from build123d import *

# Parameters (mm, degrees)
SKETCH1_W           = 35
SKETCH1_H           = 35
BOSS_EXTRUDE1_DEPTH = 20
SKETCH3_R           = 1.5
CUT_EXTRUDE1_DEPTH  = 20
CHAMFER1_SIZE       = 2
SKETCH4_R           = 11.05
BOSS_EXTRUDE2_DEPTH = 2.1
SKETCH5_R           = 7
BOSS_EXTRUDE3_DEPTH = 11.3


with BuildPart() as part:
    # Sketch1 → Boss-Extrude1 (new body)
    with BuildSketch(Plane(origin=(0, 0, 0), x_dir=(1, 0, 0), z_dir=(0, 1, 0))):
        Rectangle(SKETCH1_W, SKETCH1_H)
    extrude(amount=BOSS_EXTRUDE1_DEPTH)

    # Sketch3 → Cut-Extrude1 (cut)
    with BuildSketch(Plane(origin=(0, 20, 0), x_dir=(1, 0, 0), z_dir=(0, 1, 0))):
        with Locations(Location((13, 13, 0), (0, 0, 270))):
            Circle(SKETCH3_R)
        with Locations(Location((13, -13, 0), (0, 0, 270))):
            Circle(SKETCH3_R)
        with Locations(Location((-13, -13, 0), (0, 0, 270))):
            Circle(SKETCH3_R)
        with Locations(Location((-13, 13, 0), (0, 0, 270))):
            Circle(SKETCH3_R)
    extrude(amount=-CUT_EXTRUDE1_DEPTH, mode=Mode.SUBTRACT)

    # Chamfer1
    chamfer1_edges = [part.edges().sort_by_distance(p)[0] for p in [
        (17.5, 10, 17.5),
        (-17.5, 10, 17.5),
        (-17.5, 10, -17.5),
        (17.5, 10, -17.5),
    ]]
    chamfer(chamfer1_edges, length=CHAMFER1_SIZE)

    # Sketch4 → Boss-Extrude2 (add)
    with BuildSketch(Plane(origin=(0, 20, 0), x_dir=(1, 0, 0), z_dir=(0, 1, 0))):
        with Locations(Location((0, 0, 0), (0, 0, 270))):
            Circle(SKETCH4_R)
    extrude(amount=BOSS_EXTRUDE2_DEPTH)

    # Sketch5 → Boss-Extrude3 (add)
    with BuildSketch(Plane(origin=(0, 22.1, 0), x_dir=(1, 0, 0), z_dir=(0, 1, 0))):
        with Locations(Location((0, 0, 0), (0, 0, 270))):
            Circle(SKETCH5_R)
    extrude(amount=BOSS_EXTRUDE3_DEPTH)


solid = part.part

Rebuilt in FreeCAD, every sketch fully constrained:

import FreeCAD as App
import Part
import Sketcher

V = App.Vector
Q = App.Units.Quantity


def edges_at(feature, points):
    """Names of the edges that pass closest to the given points."""
    edges = feature.Shape.Edges
    near = lambda p: min(range(len(edges)), key=lambda i: edges[i].distToShape(Part.Vertex(*p))[0])
    return sorted({f"Edge{near(p) + 1}" for p in points})

doc = App.newDocument("Part")
body = doc.addObject("PartDesign::Body", "Body")

sketch1 = body.newObject("Sketcher::SketchObject", "Sketch")
sketch1.AttachmentSupport = (doc.getObject("XZ_Plane"), [""])
sketch1.MapMode = "FlatFace"
sketch1.addGeometry(Part.LineSegment(V(-18, -18, 0), V(-18, 18, 0)), False)
sketch1.addGeometry(Part.LineSegment(V(-18, 18, 0), V(18, 18, 0)), False)
sketch1.addGeometry(Part.LineSegment(V(18, 18, 0), V(18, -18, 0)), False)
sketch1.addGeometry(Part.LineSegment(V(18, -18, 0), V(-18, -18, 0)), False)
sketch1.addConstraint(Sketcher.Constraint("Coincident", 0, 2, 1, 1))
sketch1.addConstraint(Sketcher.Constraint("Coincident", 1, 2, 2, 1))
sketch1.addConstraint(Sketcher.Constraint("Coincident", 2, 2, 3, 1))
sketch1.addConstraint(Sketcher.Constraint("Coincident", 3, 2, 0, 1))
sketch1.addConstraint(Sketcher.Constraint("Vertical", 0))
sketch1.addConstraint(Sketcher.Constraint("Horizontal", 1))
sketch1.addConstraint(Sketcher.Constraint("Vertical", 2))
sketch1.addConstraint(Sketcher.Constraint("Horizontal", 3))
sketch1.addConstraint(Sketcher.Constraint("Symmetric", 0, 2, 2, 2, -1, 1))
sketch1.addConstraint(Sketcher.Constraint("Equal", 3, 0))
sketch1.addConstraint(Sketcher.Constraint("DistanceX", 1, 1, 1, 2, Q("35 mm")))
pad1 = body.newObject("PartDesign::Pad", "Pad")
pad1.Profile = sketch1
pad1.Length = 20
pad1.Reversed = True

sketch2 = body.newObject("Sketcher::SketchObject", "Sketch001")
sketch2.AttachmentSupport = (doc.getObject("XZ_Plane"), [""])
sketch2.MapMode = "FlatFace"
sketch2.AttachmentOffset = App.Placement(V(0, 0, -20), App.Rotation())
sketch2.addGeometry(Part.Circle(V(13, -13, 0), V(0, 0, 1), 1.5), False)
sketch2.addGeometry(Part.Circle(V(13, 13, 0), V(0, 0, 1), 1.5), False)
sketch2.addGeometry(Part.Circle(V(-13, 13, 0), V(0, 0, 1), 1.5), False)
sketch2.addGeometry(Part.Circle(V(-13, -13, 0), V(0, 0, 1), 1.5), False)
sketch2.addConstraint(Sketcher.Constraint("Equal", 0, 1))
sketch2.addConstraint(Sketcher.Constraint("Equal", 1, 2))
sketch2.addConstraint(Sketcher.Constraint("Equal", 2, 3))
sketch2.addConstraint(Sketcher.Constraint("Symmetric", 0, 3, 2, 3, -1, 1))
sketch2.addConstraint(Sketcher.Constraint("Symmetric", 1, 3, 3, 3, -1, 1))
sketch2.addConstraint(Sketcher.Constraint("Symmetric", 1, 3, 2, 3, -2))
sketch2.addConstraint(Sketcher.Constraint("Diameter", 0, Q("3 mm")))
sketch2.addConstraint(Sketcher.Constraint("DistanceX", -1, 1, 0, 3, Q("13 mm")))
sketch2.addConstraint(Sketcher.Constraint("DistanceY", 0, 3, -1, 1, Q("13 mm")))
pocket1 = body.newObject("PartDesign::Pocket", "Pocket")
pocket1.Profile = sketch2
pocket1.Length = 20
pocket1.Reversed = True
doc.recompute()

chamfer = body.newObject("PartDesign::Chamfer", "Chamfer")
chamfer.Base = (pocket1, edges_at(pocket1, [
    (17.5, 10, 17.5),
    (-17.5, 10, 17.5),
    (-17.5, 10, -17.5),
    (17.5, 10, -17.5),
]))
chamfer.Size = 2

sketch3 = body.newObject("Sketcher::SketchObject", "Sketch002")
sketch3.AttachmentSupport = (doc.getObject("XZ_Plane"), [""])
sketch3.MapMode = "FlatFace"
sketch3.AttachmentOffset = App.Placement(V(0, 0, -20), App.Rotation())
sketch3.addGeometry(Part.Circle(V(0, 0, 0), V(0, 0, 1), 11), False)
sketch3.addConstraint(Sketcher.Constraint("Coincident", 0, 3, -1, 1))
sketch3.addConstraint(Sketcher.Constraint("Diameter", 0, Q("22.1 mm")))
pad2 = body.newObject("PartDesign::Pad", "Pad001")
pad2.Profile = sketch3
pad2.Length = 2.1
pad2.Reversed = True

sketch4 = body.newObject("Sketcher::SketchObject", "Sketch003")
sketch4.AttachmentSupport = (doc.getObject("XZ_Plane"), [""])
sketch4.MapMode = "FlatFace"
sketch4.AttachmentOffset = App.Placement(V(0, 0, -22.1), App.Rotation())
sketch4.addGeometry(Part.Circle(V(0, 0, 0), V(0, 0, 1), 7), False)
sketch4.addConstraint(Sketcher.Constraint("Coincident", 0, 3, -1, 1))
sketch4.addConstraint(Sketcher.Constraint("Diameter", 0, Q("14 mm")))
pad3 = body.newObject("PartDesign::Pad", "Pad002")
pad3.Profile = sketch4
pad3.Length = 11.3
pad3.Reversed = True

doc.recompute()
